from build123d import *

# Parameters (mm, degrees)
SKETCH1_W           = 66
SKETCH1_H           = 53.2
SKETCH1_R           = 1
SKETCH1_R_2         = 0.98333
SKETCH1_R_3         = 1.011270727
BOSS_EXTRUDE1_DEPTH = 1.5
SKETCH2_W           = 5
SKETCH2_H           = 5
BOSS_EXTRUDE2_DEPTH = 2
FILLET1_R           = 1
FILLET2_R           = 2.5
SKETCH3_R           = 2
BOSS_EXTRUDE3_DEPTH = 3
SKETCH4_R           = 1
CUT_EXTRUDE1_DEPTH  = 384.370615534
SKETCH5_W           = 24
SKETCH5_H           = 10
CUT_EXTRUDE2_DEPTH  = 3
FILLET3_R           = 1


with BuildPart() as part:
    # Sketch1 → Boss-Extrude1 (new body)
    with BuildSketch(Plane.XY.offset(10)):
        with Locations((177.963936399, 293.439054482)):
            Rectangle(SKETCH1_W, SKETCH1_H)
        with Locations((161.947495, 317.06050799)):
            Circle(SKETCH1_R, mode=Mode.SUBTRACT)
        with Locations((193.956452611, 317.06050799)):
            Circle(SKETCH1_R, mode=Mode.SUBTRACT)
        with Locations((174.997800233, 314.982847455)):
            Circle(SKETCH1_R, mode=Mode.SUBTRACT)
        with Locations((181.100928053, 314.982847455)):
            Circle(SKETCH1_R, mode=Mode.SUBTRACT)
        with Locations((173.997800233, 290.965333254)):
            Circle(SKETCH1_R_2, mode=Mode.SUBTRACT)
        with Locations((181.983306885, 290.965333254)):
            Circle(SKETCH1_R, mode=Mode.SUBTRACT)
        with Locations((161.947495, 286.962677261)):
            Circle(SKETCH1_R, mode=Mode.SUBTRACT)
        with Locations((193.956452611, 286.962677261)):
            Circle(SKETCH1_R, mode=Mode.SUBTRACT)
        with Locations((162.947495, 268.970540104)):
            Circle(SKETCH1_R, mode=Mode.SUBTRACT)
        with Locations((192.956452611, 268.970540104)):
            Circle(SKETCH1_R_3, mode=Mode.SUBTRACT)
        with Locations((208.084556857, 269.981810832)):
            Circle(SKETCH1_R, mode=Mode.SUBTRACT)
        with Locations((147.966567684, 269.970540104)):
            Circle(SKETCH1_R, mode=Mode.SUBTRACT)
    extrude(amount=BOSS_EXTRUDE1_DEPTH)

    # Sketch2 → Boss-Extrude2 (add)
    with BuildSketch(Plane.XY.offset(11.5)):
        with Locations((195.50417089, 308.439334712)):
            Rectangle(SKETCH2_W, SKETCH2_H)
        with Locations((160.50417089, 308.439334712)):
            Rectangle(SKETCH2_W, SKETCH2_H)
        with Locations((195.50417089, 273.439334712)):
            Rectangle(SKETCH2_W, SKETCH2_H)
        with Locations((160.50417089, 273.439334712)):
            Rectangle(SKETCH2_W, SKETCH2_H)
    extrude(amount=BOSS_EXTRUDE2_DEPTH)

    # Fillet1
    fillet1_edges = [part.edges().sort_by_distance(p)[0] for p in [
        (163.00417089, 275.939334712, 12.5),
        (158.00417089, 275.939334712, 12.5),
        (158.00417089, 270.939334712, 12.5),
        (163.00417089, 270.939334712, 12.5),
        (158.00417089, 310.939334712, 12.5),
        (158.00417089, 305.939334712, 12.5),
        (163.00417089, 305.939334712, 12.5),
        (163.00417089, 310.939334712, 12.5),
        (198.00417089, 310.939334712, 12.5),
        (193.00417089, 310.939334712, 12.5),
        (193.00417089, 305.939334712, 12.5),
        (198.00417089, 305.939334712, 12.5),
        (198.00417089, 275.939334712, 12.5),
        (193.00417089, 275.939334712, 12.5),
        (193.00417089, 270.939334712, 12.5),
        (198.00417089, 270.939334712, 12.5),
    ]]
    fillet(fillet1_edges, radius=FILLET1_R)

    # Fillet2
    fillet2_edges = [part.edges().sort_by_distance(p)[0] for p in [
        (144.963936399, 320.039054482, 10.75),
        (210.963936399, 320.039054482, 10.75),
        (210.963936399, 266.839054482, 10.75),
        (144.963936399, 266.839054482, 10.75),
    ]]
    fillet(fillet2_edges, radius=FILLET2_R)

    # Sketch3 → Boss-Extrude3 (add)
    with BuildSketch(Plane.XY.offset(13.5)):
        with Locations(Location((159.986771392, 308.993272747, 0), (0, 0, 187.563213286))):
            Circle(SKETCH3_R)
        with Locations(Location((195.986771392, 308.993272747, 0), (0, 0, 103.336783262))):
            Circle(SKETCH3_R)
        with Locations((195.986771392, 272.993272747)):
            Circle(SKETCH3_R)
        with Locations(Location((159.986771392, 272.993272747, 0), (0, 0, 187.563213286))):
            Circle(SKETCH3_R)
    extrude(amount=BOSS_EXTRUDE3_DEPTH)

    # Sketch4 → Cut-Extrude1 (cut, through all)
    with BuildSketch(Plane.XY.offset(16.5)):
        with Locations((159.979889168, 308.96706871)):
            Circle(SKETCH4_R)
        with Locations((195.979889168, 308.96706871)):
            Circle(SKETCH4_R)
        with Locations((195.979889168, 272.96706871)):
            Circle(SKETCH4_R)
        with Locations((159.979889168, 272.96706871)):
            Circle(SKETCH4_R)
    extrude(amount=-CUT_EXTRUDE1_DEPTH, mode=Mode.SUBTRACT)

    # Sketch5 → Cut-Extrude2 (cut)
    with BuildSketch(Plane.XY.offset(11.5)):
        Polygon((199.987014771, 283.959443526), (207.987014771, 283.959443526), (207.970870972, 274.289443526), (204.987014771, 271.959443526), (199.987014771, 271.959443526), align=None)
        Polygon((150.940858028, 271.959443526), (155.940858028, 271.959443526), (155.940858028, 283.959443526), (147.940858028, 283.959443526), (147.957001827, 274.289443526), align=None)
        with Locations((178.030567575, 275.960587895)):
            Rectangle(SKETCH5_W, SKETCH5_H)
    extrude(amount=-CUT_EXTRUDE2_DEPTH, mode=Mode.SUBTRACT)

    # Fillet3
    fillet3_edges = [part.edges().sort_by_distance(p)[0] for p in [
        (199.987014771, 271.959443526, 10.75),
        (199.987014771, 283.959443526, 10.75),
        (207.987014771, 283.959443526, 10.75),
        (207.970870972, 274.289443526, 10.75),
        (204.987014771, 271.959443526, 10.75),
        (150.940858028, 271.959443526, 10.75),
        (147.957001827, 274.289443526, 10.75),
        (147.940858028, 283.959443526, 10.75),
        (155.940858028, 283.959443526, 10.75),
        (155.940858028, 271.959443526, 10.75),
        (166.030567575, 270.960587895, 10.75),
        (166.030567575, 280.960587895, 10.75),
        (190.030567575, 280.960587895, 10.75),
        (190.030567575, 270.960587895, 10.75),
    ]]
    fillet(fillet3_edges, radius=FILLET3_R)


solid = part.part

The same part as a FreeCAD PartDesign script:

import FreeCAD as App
import Part
import Sketcher


def edges_at(feature, points):
    """Names of the edges that pass closest to the given points."""
    edges = feature.Shape.Edges
    near = lambda p: min(range(len(edges)), key=lambda i: edges[i].distToShape(Part.Vertex(*p))[0])
    return sorted({f"Edge{near(p) + 1}" for p in points})


def add_polygon(sketch, points):
    """Adds a closed chain of lines whose ends are joined by coincident constraints."""
    first, n = sketch.GeometryCount, len(points)
    for a, b in zip(points, points[1:] + points[:1]):
        sketch.addGeometry(Part.LineSegment(App.Vector(*a, 0), App.Vector(*b, 0)), False)
    for i in range(n):
        sketch.addConstraint(Sketcher.Constraint("Coincident", first + i, 2, first + (i + 1) % n, 1))

doc = App.newDocument("Part")
params = doc.addObject("Spreadsheet::Sheet", "Params")
for row, (alias, value) in enumerate([
    ("sketch1_diameter", "2 mm"),
    ("sketch1_width", "66 mm"),
    ("sketch1_height", "53.2 mm"),
    ("pad1_length", "1.5 mm"),
    ("sketch2_width", "5 mm"),
    ("pad2_length", "2 mm"),
    ("fillet_radius", "1 mm"),
    ("fillet2_radius", "2.5 mm"),
    ("sketch3_diameter", "4 mm"),
    ("pad3_length", "3 mm"),
    ("sketch4_diameter", "2 mm"),
    ("sketch5_width", "8 mm"),
    ("sketch5_width2", "5 mm"),
    ("sketch5_width3", "24 mm"),
    ("sketch5_height", "12 mm"),
    ("sketch5_height2", "10 mm"),
    ("pocket2_length", "3 mm"),
    ("fillet3_radius", "1 mm"),
], start=1):
    params.set(f"A{row}", alias)
    params.set(f"B{row}", "=" + value)
    params.setAlias(f"B{row}", alias)

body = doc.addObject("PartDesign::Body", "Body")

sketch1 = doc.addObject("Sketcher::SketchObject", "Sketch")
body.addObject(sketch1)
sketch1.AttachmentSupport = (doc.XY_Plane, [""])
sketch1.MapMode = "FlatFace"
sketch1.AttachmentOffset = App.Placement(App.Vector(0, 0, 10), App.Rotation())
add_polygon(sketch1, [(145, 320), (145, 266.8), (211, 266.8), (211, 320)])
sketch1.addGeometry(Part.Circle(App.Vector(148, 270, 0), App.Vector(0, 0, 1), 1), False)
sketch1.addGeometry(Part.Circle(App.Vector(162.9, 269, 0), App.Vector(0, 0, 1), 1), False)
sketch1.addGeometry(Part.Circle(App.Vector(161.9, 287, 0), App.Vector(0, 0, 1), 1), False)
sketch1.addGeometry(Part.Circle(App.Vector(174, 291, 0), App.Vector(0, 0, 1), 1), False)
sketch1.addGeometry(Part.Circle(App.Vector(193, 269, 0), App.Vector(0, 0, 1), 1), False)
sketch1.addGeometry(Part.Circle(App.Vector(208.1, 270, 0), App.Vector(0, 0, 1), 1), False)
sketch1.addGeometry(Part.Circle(App.Vector(182, 291, 0), App.Vector(0, 0, 1), 1), False)
sketch1.addGeometry(Part.Circle(App.Vector(194, 287, 0), App.Vector(0, 0, 1), 1), False)
sketch1.addGeometry(Part.Circle(App.Vector(161.9, 317.1, 0), App.Vector(0, 0, 1), 1), False)
sketch1.addGeometry(Part.Circle(App.Vector(175, 315, 0), App.Vector(0, 0, 1), 1), False)
sketch1.addGeometry(Part.Circle(App.Vector(181.1, 315, 0), App.Vector(0, 0, 1), 1), False)
sketch1.addGeometry(Part.Circle(App.Vector(194, 317.1, 0), App.Vector(0, 0, 1), 1), False)
sketch1.addConstraint([
    Sketcher.Constraint("Vertical", 0),
    Sketcher.Constraint("Horizontal", 1),
    Sketcher.Constraint("Vertical", 2),
    Sketcher.Constraint("Horizontal", 3),
    Sketcher.Constraint("Equal", 4, 5),
    Sketcher.Constraint("Equal", 5, 6),
    Sketcher.Constraint("Equal", 6, 9),
    Sketcher.Constraint("Equal", 9, 10),
    Sketcher.Constraint("Equal", 10, 11),
    Sketcher.Constraint("Equal", 11, 12),
    Sketcher.Constraint("Equal", 12, 13),
    Sketcher.Constraint("Equal", 13, 14),
    Sketcher.Constraint("Equal", 14, 15),
    Sketcher.Constraint("Horizontal", 5, 3, 8, 3),
    Sketcher.Constraint("Horizontal", 7, 3, 10, 3),
    Sketcher.Constraint("Horizontal", 6, 3, 11, 3),
    Sketcher.Constraint("Horizontal", 13, 3, 14, 3),
    Sketcher.Constraint("Horizontal", 12, 3, 15, 3),
    Sketcher.Constraint("Vertical", 6, 3, 12, 3),
    Sketcher.Constraint("Vertical", 11, 3, 15, 3),
    Sketcher.Constraint("Diameter", 4, 2.0),
    Sketcher.Constraint("DistanceX", 1, 1, 1, 2, 66.0),
    Sketcher.Constraint("DistanceY", 0, 2, 0, 1, 53.2),
    Sketcher.Constraint("DistanceY", 5, 3, 4, 3, 1.0),
    Sketcher.Constraint("DistanceX", 6, 3, 5, 3, 1.0),
    Sketcher.Constraint("DistanceX", 8, 3, 11, 3, 1.0),
    Sketcher.Constraint("DistanceX", 7, 3, 13, 3, 1.0),
    Sketcher.Constraint("Diameter", 7, 1.96666),
    Sketcher.Constraint("Diameter", 8, 2.022541),
    Sketcher.Constraint("DistanceX", -1, 1, 7, 3, 173.9978),
    Sketcher.Constraint("DistanceY", -1, 1, 4, 3, 269.97054),
    Sketcher.Constraint("DistanceY", -1, 1, 9, 3, 269.981811),
    Sketcher.Constraint("DistanceX", -1, 1, 14, 3, 181.100928),
    Sketcher.Constraint("DistanceX", 5, 3, 9, 3, 45.137062),
    Sketcher.Constraint("DistanceX", 4, 3, 9, 3, 60.117989),
    Sketcher.Constraint("DistanceX", 6, 3, 10, 3, 20.035812),
    Sketcher.Constraint("DistanceY", 6, 3, 12, 3, 30.097831),
    Sketcher.Constraint("DistanceY", 13, 3, 12, 3, 2.077661),
    Sketcher.Constraint("DistanceX", 14, 3, 10, 3, 0.882379),
    Sketcher.Constraint("DistanceX", 0, 2, 4, 3, 3.002631),
    Sketcher.Constraint("DistanceY", 0, 2, 7, 3, 24.126279),
    Sketcher.Constraint("DistanceY", -1, 1, 6, 3, 286.962677),
    Sketcher.Constraint("DistanceY", -1, 1, 7, 3, 290.965333),
    Sketcher.Constraint("DistanceX", -1, 1, 8, 3, 192.956453),
])
sketch1.setExpression("Constraints[24]", "Params.sketch1_diameter")
sketch1.setExpression("Constraints[25]", "Params.sketch1_width")
sketch1.setExpression("Constraints[26]", "Params.sketch1_height")
pad1 = doc.addObject("PartDesign::Pad", "Pad")
body.addObject(pad1)
pad1.Profile = sketch1
pad1.setExpression("Length", "Params.pad1_length")

sketch2 = doc.addObject("Sketcher::SketchObject", "Sketch001")
body.addObject(sketch2)
sketch2.AttachmentSupport = (doc.XY_Plane, [""])
sketch2.MapMode = "FlatFace"
sketch2.AttachmentOffset = App.Placement(App.Vector(0, 0, 11.5), App.Rotation())
add_polygon(sketch2, [(193, 311), (193, 306), (198, 306), (198, 311)])
add_polygon(sketch2, [(158, 311), (158, 306), (163, 306), (163, 311)])
add_polygon(sketch2, [(193, 276), (193, 271), (198, 271), (198, 276)])
add_polygon(sketch2, [(158, 276), (158, 271), (163, 271), (163, 276)])
sketch2.addConstraint([
    Sketcher.Constraint("Vertical", 0),
    Sketcher.Constraint("Horizontal", 1),
    Sketcher.Constraint("Vertical", 2),
    Sketcher.Constraint("Horizontal", 3),
    Sketcher.Constraint("Vertical", 4),
    Sketcher.Constraint("Horizontal", 5),
    Sketcher.Constraint("Vertical", 6),
    Sketcher.Constraint("Horizontal", 7),
    Sketcher.Constraint("Vertical", 8),
    Sketcher.Constraint("Horizontal", 9),
    Sketcher.Constraint("Vertical", 10),
    Sketcher.Constraint("Horizontal", 11),
    Sketcher.Constraint("Vertical", 12),
    Sketcher.Constraint("Horizontal", 13),
    Sketcher.Constraint("Vertical", 14),
    Sketcher.Constraint("Horizontal", 15),
    Sketcher.Constraint("Horizontal", 1, 2, 4, 2),
    Sketcher.Constraint("Horizontal", 3, 2, 6, 2),
    Sketcher.Constraint("Horizontal", 9, 2, 12, 2),
    Sketcher.Constraint("Horizontal", 11, 2, 14, 2),
    Sketcher.Constraint("Vertical", 3, 2, 8, 2),
    Sketcher.Constraint("Vertical", 2, 2, 9, 2),
    Sketcher.Constraint("Vertical", 7, 2, 12, 2),
    Sketcher.Constraint("Vertical", 6, 2, 13, 2),
    Sketcher.Constraint("Equal", 3, 5),
    Sketcher.Constraint("Equal", 15, 0),
    Sketcher.Constraint("Equal", 6, 8),
    Sketcher.Constraint("DistanceX", 1, 1, 1, 2, 5.0),
    Sketcher.Constraint("DistanceX", 4, 2, 0, 2, 35.0),
    Sketcher.Constraint("DistanceY", 8, 2, 0, 2, 35.0),
    Sketcher.Constraint("DistanceX", -1, 1, 0, 2, 193.004171),
    Sketcher.Constraint("DistanceY", -1, 1, 0, 2, 305.939335),
])
sketch2.setExpression("Constraints[43]", "Params.sketch2_width")
pad2 = doc.addObject("PartDesign::Pad", "Pad001")
body.addObject(pad2)
pad2.Profile = sketch2
pad2.setExpression("Length", "Params.pad2_length")
doc.recompute()

fillet = doc.addObject("PartDesign::Fillet", "Fillet")
body.addObject(fillet)
fillet.Base = (pad2, edges_at(pad2, [
    (163.004, 275.939, 12.5),
    (158.004, 275.939, 12.5),
    (158.004, 270.939, 12.5),
    (163.004, 270.939, 12.5),
    (158.004, 310.939, 12.5),
    (158.004, 305.939, 12.5),
    (163.004, 305.939, 12.5),
    (163.004, 310.939, 12.5),
    (198.004, 310.939, 12.5),
    (193.004, 310.939, 12.5),
    (193.004, 305.939, 12.5),
    (198.004, 305.939, 12.5),
    (198.004, 275.939, 12.5),
    (193.004, 275.939, 12.5),
    (193.004, 270.939, 12.5),
    (198.004, 270.939, 12.5),
]))
fillet.setExpression("Radius", "Params.fillet_radius")
doc.recompute()

fillet2 = doc.addObject("PartDesign::Fillet", "Fillet001")
body.addObject(fillet2)
fillet2.Base = (fillet, edges_at(fillet, [
    (144.964, 320.039, 10.75),
    (210.964, 320.039, 10.75),
    (210.964, 266.839, 10.75),
    (144.964, 266.839, 10.75),
]))
fillet2.setExpression("Radius", "Params.fillet2_radius")

sketch3 = doc.addObject("Sketcher::SketchObject", "Sketch002")
body.addObject(sketch3)
sketch3.AttachmentSupport = (doc.XY_Plane, [""])
sketch3.MapMode = "FlatFace"
sketch3.AttachmentOffset = App.Placement(App.Vector(0, 0, 13.5), App.Rotation())
sketch3.addGeometry([
    Part.Circle(App.Vector(160, 309, 0), App.Vector(0, 0, 1), 2),
    Part.Circle(App.Vector(196, 309, 0), App.Vector(0, 0, 1), 2),
    Part.Circle(App.Vector(196, 273, 0), App.Vector(0, 0, 1), 2),
    Part.Circle(App.Vector(160, 273, 0), App.Vector(0, 0, 1), 2),
], False)
sketch3.addConstraint([
    Sketcher.Constraint("Equal", 0, 1),
    Sketcher.Constraint("Equal", 1, 2),
    Sketcher.Constraint("Equal", 2, 3),
    Sketcher.Constraint("Horizontal", 0, 3, 1, 3),
    Sketcher.Constraint("Horizontal", 2, 3, 3, 3),
    Sketcher.Constraint("Vertical", 1, 3, 2, 3),
    Sketcher.Constraint("Vertical", 0, 3, 3, 3),
    Sketcher.Constraint("Diameter", 0, 4.0),
    Sketcher.Constraint("DistanceX", 0, 3, 1, 3, 36.0),
    Sketcher.Constraint("DistanceY", 2, 3, 1, 3, 36.0),
    Sketcher.Constraint("DistanceX", -1, 1, 0, 3, 159.986771),
    Sketcher.Constraint("DistanceY", -1, 1, 0, 3, 308.993273),
])
sketch3.setExpression("Constraints[7]", "Params.sketch3_diameter")
pad3 = doc.addObject("PartDesign::Pad", "Pad002")
body.addObject(pad3)
pad3.Profile = sketch3
pad3.setExpression("Length", "Params.pad3_length")

sketch4 = doc.addObject("Sketcher::SketchObject", "Sketch003")
body.addObject(sketch4)
sketch4.AttachmentSupport = (doc.XY_Plane, [""])
sketch4.MapMode = "FlatFace"
sketch4.AttachmentOffset = App.Placement(App.Vector(0, 0, 16.5), App.Rotation())
sketch4.addGeometry([
    Part.Circle(App.Vector(160, 309, 0), App.Vector(0, 0, 1), 1),
    Part.Circle(App.Vector(196, 309, 0), App.Vector(0, 0, 1), 1),
    Part.Circle(App.Vector(196, 273, 0), App.Vector(0, 0, 1), 1),
    Part.Circle(App.Vector(160, 273, 0), App.Vector(0, 0, 1), 1),
], False)
sketch4.addConstraint([
    Sketcher.Constraint("Equal", 0, 1),
    Sketcher.Constraint("Equal", 1, 2),
    Sketcher.Constraint("Equal", 2, 3),
    Sketcher.Constraint("Horizontal", 0, 3, 1, 3),
    Sketcher.Constraint("Horizontal", 2, 3, 3, 3),
    Sketcher.Constraint("Vertical", 1, 3, 2, 3),
    Sketcher.Constraint("Vertical", 0, 3, 3, 3),
    Sketcher.Constraint("Diameter", 0, 2.0),
    Sketcher.Constraint("DistanceX", 0, 3, 1, 3, 36.0),
    Sketcher.Constraint("DistanceY", 2, 3, 1, 3, 36.0),
    Sketcher.Constraint("DistanceX", -1, 1, 0, 3, 159.979889),
    Sketcher.Constraint("DistanceY", -1, 1, 0, 3, 308.967069),
])
sketch4.setExpression("Constraints[7]", "Params.sketch4_diameter")
pocket1 = doc.addObject("PartDesign::Pocket", "Pocket")
body.addObject(pocket1)
pocket1.Profile = sketch4
pocket1.Type = "ThroughAll"

sketch5 = doc.addObject("Sketcher::SketchObject", "Sketch004")
body.addObject(sketch5)
sketch5.AttachmentSupport = (doc.XY_Plane, [""])
sketch5.MapMode = "FlatFace"
sketch5.AttachmentOffset = App.Placement(App.Vector(0, 0, 11.5), App.Rotation())
add_polygon(sketch5, [(208, 284), (200, 284), (200, 272), (205, 272), (208, 274.3)])
add_polygon(sketch5, [(150.9, 272), (155.9, 272), (155.9, 284), (147.9, 284), (148, 274.3)])
add_polygon(sketch5, [(166, 281), (166, 271), (190, 271), (190, 281)])
sketch5.addConstraint([
    Sketcher.Constraint("Horizontal", 0),
    Sketcher.Constraint("Vertical", 1),
    Sketcher.Constraint("Horizontal", 2),
    Sketcher.Constraint("Horizontal", 5),
    Sketcher.Constraint("Vertical", 6),
    Sketcher.Constraint("Horizontal", 7),
    Sketcher.Constraint("Vertical", 10),
    Sketcher.Constraint("Horizontal", 11),
    Sketcher.Constraint("Vertical", 12),
    Sketcher.Constraint("Horizontal", 13),
    Sketcher.Constraint("Horizontal", 2, 2, 5, 2),
    Sketcher.Constraint("Horizontal", 4, 2, 6, 2),
    Sketcher.Constraint("Horizontal", 3, 2, 8, 2),
    Sketcher.Constraint("Equal", 2, 5),
    Sketcher.Constraint("Equal", 0, 7),
    Sketcher.Constraint("Equal", 3, 9),
    Sketcher.Constraint("DistanceX", 0, 2, 0, 1, 8.0),
    Sketcher.Constraint("DistanceX", 2, 1, 2, 2, 5.0),
    Sketcher.Constraint("DistanceX", 11, 1, 11, 2, 24.0),
    Sketcher.Constraint("DistanceY", 1, 2, 1, 1, 12.0),
    Sketcher.Constraint("DistanceY", 10, 2, 10, 1, 10.0),
    Sketcher.Constraint("DistanceY", 2, 2, 3, 2, 2.33),
    Sketcher.Constraint("DistanceX", -1, 1, 8, 2, 147.957002),
    Sketcher.Constraint("DistanceX", -1, 1, 3, 2, 207.970871),
    Sketcher.Constraint("DistanceX", -1, 1, 5, 2, 155.940858),
    Sketcher.Constraint("DistanceX", 5, 2, 10, 2, 10.08971),
    Sketcher.Constraint("DistanceY", -1, 1, 0, 2, 283.959444),
    Sketcher.Constraint("DistanceY", -1, 1, 10, 2, 270.960588),
])
sketch5.setExpression("Constraints[30]", "Params.sketch5_width")
sketch5.setExpression("Constraints[31]", "Params.sketch5_width2")
sketch5.setExpression("Constraints[32]", "Params.sketch5_width3")
sketch5.setExpression("Constraints[33]", "Params.sketch5_height")
sketch5.setExpression("Constraints[34]", "Params.sketch5_height2")
pocket2 = doc.addObject("PartDesign::Pocket", "Pocket001")
body.addObject(pocket2)
pocket2.Profile = sketch5
pocket2.setExpression("Length", "Params.pocket2_length")
doc.recompute()

fillet3 = doc.addObject("PartDesign::Fillet", "Fillet002")
body.addObject(fillet3)
fillet3.Base = (pocket2, edges_at(pocket2, [
    (199.987, 271.959, 10.75),
    (199.987, 283.959, 10.75),
    (207.987, 283.959, 10.75),
    (207.971, 274.289, 10.75),
    (204.987, 271.959, 10.75),
    (150.941, 271.959, 10.75),
    (147.957, 274.289, 10.75),
    (147.941, 283.959, 10.75),
    (155.941, 283.959, 10.75),
    (155.941, 271.959, 10.75),
    (166.031, 270.961, 10.75),
    (166.031, 280.961, 10.75),
    (190.031, 280.961, 10.75),
    (190.031, 270.961, 10.75),
]))
fillet3.setExpression("Radius", "Params.fillet3_radius")

doc.recompute()
